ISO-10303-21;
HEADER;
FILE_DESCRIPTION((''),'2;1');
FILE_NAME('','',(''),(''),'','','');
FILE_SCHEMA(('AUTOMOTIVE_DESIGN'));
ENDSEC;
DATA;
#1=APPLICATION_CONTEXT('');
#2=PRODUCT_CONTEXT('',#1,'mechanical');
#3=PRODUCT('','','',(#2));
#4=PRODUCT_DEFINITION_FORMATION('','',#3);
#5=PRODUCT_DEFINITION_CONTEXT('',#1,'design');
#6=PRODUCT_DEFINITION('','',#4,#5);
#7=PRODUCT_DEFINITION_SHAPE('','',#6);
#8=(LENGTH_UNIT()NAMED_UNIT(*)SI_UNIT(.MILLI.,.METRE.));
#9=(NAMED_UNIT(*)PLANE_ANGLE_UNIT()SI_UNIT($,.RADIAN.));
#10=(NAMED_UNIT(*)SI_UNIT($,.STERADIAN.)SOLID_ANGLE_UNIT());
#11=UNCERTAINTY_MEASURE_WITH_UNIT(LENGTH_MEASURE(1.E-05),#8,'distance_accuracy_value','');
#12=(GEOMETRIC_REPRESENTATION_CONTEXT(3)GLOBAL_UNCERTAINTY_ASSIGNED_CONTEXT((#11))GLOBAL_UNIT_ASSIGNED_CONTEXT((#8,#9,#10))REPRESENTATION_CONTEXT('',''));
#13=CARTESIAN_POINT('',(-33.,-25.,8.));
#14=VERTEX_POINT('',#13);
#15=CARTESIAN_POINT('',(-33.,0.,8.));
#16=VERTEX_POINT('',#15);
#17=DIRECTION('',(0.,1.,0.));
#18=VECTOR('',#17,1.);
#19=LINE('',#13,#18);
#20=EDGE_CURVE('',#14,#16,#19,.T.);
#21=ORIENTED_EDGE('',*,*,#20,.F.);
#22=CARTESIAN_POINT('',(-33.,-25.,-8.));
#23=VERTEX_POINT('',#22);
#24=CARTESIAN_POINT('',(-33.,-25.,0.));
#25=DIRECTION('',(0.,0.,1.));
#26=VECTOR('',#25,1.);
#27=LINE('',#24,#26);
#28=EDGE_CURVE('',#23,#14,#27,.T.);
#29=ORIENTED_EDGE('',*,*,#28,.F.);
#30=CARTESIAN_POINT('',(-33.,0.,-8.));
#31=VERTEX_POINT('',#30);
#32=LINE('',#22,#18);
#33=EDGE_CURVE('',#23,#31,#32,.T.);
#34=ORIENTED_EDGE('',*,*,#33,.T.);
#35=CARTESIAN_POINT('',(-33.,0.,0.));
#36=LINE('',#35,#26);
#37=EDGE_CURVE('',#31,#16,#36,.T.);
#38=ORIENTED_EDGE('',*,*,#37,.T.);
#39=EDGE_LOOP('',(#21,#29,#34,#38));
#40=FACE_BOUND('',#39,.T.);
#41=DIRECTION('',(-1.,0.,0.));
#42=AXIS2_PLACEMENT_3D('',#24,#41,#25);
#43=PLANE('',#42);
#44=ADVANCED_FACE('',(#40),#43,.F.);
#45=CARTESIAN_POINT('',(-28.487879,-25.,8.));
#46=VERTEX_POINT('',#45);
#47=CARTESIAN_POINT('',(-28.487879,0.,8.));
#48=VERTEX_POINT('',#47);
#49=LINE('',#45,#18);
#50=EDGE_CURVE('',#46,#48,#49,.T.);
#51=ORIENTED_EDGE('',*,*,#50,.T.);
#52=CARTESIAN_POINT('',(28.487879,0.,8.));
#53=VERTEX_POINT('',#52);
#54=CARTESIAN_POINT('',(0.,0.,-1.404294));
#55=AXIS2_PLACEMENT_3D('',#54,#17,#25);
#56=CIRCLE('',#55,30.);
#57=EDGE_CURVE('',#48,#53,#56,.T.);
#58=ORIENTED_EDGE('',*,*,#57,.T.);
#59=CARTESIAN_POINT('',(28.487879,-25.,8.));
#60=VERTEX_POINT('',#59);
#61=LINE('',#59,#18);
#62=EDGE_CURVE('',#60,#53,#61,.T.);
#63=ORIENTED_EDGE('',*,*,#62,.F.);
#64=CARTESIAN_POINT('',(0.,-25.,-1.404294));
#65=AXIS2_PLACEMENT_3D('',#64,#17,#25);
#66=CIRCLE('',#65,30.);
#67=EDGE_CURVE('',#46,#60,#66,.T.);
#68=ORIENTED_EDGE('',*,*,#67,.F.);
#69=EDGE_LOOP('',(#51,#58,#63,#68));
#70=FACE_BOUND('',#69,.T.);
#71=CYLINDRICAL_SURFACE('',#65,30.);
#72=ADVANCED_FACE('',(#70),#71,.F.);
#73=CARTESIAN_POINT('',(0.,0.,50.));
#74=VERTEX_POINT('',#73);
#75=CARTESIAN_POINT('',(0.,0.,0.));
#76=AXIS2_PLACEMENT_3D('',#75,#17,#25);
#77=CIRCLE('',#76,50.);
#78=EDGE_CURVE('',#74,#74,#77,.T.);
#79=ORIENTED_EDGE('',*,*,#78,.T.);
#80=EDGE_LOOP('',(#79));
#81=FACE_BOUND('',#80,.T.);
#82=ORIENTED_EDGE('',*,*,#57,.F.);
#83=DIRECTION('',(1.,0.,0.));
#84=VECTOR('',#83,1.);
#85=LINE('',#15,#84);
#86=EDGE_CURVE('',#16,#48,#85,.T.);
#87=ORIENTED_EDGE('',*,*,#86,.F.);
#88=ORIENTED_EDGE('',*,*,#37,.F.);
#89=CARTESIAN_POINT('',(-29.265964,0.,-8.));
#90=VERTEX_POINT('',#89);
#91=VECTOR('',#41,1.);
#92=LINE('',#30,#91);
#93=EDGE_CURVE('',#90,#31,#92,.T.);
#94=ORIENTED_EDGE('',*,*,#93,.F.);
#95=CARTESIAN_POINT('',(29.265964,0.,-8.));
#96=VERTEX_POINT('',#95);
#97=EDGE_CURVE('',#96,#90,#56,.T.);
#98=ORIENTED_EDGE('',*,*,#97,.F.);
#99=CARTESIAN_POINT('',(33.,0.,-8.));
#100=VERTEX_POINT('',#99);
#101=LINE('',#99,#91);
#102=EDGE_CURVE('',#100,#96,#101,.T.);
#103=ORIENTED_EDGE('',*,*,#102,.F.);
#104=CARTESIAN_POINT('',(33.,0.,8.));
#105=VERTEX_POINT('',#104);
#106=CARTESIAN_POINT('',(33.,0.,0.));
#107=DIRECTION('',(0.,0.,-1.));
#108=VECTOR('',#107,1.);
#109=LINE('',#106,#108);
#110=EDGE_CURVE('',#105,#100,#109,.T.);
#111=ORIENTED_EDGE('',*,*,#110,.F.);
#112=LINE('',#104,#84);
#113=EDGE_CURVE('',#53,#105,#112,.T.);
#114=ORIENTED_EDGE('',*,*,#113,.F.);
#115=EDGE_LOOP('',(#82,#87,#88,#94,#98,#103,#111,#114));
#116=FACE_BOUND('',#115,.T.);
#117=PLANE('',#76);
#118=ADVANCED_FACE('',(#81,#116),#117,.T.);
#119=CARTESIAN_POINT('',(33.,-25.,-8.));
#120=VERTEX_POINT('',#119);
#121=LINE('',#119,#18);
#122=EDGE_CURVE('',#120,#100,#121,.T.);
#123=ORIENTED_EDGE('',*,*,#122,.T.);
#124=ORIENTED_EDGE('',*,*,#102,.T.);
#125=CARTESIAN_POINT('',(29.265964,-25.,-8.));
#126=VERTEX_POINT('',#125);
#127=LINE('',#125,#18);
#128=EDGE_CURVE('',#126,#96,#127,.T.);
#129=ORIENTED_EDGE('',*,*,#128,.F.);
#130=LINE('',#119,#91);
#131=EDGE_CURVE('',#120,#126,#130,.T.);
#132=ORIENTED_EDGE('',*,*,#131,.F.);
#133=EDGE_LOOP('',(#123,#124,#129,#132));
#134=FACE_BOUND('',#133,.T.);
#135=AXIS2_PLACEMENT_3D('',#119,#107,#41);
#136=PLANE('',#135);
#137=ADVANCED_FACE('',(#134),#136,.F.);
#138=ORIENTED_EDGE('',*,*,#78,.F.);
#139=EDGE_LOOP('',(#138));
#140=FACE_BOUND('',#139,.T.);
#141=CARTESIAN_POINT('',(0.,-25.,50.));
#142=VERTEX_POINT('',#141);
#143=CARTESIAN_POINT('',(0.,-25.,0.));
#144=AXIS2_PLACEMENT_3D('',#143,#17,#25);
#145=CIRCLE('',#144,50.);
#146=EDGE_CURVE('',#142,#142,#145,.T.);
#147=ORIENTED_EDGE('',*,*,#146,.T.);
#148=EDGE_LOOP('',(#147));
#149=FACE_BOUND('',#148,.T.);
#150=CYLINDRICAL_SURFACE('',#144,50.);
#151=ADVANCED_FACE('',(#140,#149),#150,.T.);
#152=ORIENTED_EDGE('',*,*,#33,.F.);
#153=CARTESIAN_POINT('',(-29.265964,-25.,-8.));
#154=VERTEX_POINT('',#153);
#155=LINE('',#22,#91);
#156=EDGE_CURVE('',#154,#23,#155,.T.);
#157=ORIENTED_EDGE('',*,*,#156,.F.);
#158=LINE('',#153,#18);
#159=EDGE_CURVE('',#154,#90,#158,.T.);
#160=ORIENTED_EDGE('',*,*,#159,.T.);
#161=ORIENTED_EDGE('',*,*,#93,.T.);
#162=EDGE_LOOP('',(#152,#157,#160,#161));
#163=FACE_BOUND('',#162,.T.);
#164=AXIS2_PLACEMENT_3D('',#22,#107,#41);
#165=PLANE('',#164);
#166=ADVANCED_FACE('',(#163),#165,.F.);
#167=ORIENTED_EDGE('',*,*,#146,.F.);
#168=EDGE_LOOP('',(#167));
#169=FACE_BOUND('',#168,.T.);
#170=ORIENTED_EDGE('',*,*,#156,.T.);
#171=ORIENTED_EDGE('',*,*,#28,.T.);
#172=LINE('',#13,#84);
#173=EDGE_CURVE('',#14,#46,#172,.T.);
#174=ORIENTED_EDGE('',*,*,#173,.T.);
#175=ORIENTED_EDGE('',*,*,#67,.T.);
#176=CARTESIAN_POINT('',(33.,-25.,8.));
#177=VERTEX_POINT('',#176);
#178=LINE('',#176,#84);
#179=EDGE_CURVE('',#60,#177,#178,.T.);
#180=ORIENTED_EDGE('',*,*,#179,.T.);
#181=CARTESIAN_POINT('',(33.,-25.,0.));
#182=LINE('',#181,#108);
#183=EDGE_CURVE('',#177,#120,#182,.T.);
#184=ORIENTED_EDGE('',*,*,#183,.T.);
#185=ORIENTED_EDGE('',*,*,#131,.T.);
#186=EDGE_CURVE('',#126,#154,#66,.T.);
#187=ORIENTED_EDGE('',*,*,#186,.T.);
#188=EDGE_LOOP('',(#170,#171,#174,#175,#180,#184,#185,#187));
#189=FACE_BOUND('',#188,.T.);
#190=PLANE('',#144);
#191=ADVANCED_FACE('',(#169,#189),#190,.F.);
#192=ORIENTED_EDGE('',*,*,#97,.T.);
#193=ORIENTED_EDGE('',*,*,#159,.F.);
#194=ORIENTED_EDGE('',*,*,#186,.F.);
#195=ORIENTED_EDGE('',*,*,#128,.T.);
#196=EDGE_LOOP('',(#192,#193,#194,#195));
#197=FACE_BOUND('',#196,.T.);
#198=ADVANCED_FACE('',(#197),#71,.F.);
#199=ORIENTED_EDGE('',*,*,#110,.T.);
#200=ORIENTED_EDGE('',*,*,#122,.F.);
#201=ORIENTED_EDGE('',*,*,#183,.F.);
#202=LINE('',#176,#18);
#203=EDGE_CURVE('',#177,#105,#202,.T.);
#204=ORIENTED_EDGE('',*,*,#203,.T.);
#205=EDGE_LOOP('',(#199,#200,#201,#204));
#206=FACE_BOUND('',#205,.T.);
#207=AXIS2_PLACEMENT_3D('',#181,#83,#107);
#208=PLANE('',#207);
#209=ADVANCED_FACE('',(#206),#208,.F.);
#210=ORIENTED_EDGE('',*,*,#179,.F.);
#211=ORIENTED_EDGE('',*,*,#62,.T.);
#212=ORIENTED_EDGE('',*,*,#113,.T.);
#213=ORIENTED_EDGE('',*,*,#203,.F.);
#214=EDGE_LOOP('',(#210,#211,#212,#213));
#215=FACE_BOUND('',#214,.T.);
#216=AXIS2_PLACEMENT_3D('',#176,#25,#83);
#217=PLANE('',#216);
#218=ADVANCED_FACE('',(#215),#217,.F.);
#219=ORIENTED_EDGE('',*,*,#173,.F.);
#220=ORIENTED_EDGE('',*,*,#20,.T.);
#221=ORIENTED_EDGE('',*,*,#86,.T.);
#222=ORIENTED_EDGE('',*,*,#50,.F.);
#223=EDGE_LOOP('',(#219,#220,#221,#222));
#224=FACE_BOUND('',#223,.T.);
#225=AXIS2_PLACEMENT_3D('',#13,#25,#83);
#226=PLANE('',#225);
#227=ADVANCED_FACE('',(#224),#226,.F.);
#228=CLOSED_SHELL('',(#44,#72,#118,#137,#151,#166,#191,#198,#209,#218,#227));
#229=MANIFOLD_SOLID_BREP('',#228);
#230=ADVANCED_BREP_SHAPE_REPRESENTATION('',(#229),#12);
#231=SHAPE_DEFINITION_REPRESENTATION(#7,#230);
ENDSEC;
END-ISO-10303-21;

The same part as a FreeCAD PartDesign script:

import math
import FreeCAD as App
import Part
import Sketcher

doc = App.newDocument("Part")
body = doc.addObject("PartDesign::Body", "Body")

# Sketch on XZ plane
sketch1 = doc.addObject("Sketcher::SketchObject", "Sketch")
body.addObject(sketch1)
sketch1.AttachmentSupport = (doc.XZ_Plane, [""])
sketch1.MapMode = "FlatFace"
sketch1.addGeometry([
    Part.Circle(App.Vector(0, 0, 0), App.Vector(0, 0, 1), 50),  # 0
    Part.LineSegment(App.Vector(29.3, -8, 0), App.Vector(33, -8, 0)),  # 1
    Part.LineSegment(App.Vector(33, -8, 0), App.Vector(33, 8, 0)),  # 2
    Part.LineSegment(App.Vector(33, 8, 0), App.Vector(28.5, 8, 0)),  # 3
    Part.ArcOfCircle(Part.Circle(App.Vector(0, -1.4, 0), App.Vector(0, 0, 1), 30), math.radians(18), math.radians(162)),  # 4
    Part.LineSegment(App.Vector(-28.5, 8, 0), App.Vector(-33, 8, 0)),  # 5
    Part.LineSegment(App.Vector(-33, 8, 0), App.Vector(-33, -8, 0)),  # 6
    Part.LineSegment(App.Vector(-33, -8, 0), App.Vector(-29.3, -8, 0)),  # 7
    Part.ArcOfCircle(Part.Circle(App.Vector(0, -1.4, 0), App.Vector(0, 0, 1), 30), math.radians(-167), math.radians(-13)),  # 8
], False)
sketch1.addConstraint([
    Sketcher.Constraint("Coincident", 1, 2, 2, 1),
    Sketcher.Constraint("Coincident", 2, 2, 3, 1),
    Sketcher.Constraint("Coincident", 3, 2, 4, 1),
    Sketcher.Constraint("Coincident", 4, 2, 5, 1),
    Sketcher.Constraint("Coincident", 5, 2, 6, 1),
    Sketcher.Constraint("Coincident", 6, 2, 7, 1),
    Sketcher.Constraint("Coincident", 7, 2, 8, 1),
    Sketcher.Constraint("Coincident", 8, 2, 1, 1),
    Sketcher.Constraint("Horizontal", 1),
    Sketcher.Constraint("Vertical", 2),
    Sketcher.Constraint("Horizontal", 3),
    Sketcher.Constraint("Horizontal", 5),
    Sketcher.Constraint("Vertical", 6),
    Sketcher.Constraint("Horizontal", 7),
    Sketcher.Constraint("Coincident", 0, 3, -1, 1),
    Sketcher.Constraint("Coincident", 8, 3, 4, 3),
    Sketcher.Constraint("Equal", 4, 8),
    Sketcher.Constraint("Symmetric", 1, 2, 5, 2, -1, 1),
    Sketcher.Constraint("Symmetric", 3, 2, 4, 2, -2),
    Sketcher.Constraint("Horizontal", 1, 2, 6, 2),
    Sketcher.Constraint("Diameter", 0, 100.0),
    Sketcher.Constraint("Radius", 4, 30.0),
    Sketcher.Constraint("DistanceY", 2, 1, 2, 2, 16.0),
    Sketcher.Constraint("DistanceX", -1, 1, 1, 2, 33.0),
    Sketcher.Constraint("DistanceX", 3, 2, 3, 1, 4.512121),
])
pad1 = doc.addObject("PartDesign::Pad", "Pad")
body.addObject(pad1)
pad1.Profile = sketch1
pad1.Length = 25

doc.recompute()
